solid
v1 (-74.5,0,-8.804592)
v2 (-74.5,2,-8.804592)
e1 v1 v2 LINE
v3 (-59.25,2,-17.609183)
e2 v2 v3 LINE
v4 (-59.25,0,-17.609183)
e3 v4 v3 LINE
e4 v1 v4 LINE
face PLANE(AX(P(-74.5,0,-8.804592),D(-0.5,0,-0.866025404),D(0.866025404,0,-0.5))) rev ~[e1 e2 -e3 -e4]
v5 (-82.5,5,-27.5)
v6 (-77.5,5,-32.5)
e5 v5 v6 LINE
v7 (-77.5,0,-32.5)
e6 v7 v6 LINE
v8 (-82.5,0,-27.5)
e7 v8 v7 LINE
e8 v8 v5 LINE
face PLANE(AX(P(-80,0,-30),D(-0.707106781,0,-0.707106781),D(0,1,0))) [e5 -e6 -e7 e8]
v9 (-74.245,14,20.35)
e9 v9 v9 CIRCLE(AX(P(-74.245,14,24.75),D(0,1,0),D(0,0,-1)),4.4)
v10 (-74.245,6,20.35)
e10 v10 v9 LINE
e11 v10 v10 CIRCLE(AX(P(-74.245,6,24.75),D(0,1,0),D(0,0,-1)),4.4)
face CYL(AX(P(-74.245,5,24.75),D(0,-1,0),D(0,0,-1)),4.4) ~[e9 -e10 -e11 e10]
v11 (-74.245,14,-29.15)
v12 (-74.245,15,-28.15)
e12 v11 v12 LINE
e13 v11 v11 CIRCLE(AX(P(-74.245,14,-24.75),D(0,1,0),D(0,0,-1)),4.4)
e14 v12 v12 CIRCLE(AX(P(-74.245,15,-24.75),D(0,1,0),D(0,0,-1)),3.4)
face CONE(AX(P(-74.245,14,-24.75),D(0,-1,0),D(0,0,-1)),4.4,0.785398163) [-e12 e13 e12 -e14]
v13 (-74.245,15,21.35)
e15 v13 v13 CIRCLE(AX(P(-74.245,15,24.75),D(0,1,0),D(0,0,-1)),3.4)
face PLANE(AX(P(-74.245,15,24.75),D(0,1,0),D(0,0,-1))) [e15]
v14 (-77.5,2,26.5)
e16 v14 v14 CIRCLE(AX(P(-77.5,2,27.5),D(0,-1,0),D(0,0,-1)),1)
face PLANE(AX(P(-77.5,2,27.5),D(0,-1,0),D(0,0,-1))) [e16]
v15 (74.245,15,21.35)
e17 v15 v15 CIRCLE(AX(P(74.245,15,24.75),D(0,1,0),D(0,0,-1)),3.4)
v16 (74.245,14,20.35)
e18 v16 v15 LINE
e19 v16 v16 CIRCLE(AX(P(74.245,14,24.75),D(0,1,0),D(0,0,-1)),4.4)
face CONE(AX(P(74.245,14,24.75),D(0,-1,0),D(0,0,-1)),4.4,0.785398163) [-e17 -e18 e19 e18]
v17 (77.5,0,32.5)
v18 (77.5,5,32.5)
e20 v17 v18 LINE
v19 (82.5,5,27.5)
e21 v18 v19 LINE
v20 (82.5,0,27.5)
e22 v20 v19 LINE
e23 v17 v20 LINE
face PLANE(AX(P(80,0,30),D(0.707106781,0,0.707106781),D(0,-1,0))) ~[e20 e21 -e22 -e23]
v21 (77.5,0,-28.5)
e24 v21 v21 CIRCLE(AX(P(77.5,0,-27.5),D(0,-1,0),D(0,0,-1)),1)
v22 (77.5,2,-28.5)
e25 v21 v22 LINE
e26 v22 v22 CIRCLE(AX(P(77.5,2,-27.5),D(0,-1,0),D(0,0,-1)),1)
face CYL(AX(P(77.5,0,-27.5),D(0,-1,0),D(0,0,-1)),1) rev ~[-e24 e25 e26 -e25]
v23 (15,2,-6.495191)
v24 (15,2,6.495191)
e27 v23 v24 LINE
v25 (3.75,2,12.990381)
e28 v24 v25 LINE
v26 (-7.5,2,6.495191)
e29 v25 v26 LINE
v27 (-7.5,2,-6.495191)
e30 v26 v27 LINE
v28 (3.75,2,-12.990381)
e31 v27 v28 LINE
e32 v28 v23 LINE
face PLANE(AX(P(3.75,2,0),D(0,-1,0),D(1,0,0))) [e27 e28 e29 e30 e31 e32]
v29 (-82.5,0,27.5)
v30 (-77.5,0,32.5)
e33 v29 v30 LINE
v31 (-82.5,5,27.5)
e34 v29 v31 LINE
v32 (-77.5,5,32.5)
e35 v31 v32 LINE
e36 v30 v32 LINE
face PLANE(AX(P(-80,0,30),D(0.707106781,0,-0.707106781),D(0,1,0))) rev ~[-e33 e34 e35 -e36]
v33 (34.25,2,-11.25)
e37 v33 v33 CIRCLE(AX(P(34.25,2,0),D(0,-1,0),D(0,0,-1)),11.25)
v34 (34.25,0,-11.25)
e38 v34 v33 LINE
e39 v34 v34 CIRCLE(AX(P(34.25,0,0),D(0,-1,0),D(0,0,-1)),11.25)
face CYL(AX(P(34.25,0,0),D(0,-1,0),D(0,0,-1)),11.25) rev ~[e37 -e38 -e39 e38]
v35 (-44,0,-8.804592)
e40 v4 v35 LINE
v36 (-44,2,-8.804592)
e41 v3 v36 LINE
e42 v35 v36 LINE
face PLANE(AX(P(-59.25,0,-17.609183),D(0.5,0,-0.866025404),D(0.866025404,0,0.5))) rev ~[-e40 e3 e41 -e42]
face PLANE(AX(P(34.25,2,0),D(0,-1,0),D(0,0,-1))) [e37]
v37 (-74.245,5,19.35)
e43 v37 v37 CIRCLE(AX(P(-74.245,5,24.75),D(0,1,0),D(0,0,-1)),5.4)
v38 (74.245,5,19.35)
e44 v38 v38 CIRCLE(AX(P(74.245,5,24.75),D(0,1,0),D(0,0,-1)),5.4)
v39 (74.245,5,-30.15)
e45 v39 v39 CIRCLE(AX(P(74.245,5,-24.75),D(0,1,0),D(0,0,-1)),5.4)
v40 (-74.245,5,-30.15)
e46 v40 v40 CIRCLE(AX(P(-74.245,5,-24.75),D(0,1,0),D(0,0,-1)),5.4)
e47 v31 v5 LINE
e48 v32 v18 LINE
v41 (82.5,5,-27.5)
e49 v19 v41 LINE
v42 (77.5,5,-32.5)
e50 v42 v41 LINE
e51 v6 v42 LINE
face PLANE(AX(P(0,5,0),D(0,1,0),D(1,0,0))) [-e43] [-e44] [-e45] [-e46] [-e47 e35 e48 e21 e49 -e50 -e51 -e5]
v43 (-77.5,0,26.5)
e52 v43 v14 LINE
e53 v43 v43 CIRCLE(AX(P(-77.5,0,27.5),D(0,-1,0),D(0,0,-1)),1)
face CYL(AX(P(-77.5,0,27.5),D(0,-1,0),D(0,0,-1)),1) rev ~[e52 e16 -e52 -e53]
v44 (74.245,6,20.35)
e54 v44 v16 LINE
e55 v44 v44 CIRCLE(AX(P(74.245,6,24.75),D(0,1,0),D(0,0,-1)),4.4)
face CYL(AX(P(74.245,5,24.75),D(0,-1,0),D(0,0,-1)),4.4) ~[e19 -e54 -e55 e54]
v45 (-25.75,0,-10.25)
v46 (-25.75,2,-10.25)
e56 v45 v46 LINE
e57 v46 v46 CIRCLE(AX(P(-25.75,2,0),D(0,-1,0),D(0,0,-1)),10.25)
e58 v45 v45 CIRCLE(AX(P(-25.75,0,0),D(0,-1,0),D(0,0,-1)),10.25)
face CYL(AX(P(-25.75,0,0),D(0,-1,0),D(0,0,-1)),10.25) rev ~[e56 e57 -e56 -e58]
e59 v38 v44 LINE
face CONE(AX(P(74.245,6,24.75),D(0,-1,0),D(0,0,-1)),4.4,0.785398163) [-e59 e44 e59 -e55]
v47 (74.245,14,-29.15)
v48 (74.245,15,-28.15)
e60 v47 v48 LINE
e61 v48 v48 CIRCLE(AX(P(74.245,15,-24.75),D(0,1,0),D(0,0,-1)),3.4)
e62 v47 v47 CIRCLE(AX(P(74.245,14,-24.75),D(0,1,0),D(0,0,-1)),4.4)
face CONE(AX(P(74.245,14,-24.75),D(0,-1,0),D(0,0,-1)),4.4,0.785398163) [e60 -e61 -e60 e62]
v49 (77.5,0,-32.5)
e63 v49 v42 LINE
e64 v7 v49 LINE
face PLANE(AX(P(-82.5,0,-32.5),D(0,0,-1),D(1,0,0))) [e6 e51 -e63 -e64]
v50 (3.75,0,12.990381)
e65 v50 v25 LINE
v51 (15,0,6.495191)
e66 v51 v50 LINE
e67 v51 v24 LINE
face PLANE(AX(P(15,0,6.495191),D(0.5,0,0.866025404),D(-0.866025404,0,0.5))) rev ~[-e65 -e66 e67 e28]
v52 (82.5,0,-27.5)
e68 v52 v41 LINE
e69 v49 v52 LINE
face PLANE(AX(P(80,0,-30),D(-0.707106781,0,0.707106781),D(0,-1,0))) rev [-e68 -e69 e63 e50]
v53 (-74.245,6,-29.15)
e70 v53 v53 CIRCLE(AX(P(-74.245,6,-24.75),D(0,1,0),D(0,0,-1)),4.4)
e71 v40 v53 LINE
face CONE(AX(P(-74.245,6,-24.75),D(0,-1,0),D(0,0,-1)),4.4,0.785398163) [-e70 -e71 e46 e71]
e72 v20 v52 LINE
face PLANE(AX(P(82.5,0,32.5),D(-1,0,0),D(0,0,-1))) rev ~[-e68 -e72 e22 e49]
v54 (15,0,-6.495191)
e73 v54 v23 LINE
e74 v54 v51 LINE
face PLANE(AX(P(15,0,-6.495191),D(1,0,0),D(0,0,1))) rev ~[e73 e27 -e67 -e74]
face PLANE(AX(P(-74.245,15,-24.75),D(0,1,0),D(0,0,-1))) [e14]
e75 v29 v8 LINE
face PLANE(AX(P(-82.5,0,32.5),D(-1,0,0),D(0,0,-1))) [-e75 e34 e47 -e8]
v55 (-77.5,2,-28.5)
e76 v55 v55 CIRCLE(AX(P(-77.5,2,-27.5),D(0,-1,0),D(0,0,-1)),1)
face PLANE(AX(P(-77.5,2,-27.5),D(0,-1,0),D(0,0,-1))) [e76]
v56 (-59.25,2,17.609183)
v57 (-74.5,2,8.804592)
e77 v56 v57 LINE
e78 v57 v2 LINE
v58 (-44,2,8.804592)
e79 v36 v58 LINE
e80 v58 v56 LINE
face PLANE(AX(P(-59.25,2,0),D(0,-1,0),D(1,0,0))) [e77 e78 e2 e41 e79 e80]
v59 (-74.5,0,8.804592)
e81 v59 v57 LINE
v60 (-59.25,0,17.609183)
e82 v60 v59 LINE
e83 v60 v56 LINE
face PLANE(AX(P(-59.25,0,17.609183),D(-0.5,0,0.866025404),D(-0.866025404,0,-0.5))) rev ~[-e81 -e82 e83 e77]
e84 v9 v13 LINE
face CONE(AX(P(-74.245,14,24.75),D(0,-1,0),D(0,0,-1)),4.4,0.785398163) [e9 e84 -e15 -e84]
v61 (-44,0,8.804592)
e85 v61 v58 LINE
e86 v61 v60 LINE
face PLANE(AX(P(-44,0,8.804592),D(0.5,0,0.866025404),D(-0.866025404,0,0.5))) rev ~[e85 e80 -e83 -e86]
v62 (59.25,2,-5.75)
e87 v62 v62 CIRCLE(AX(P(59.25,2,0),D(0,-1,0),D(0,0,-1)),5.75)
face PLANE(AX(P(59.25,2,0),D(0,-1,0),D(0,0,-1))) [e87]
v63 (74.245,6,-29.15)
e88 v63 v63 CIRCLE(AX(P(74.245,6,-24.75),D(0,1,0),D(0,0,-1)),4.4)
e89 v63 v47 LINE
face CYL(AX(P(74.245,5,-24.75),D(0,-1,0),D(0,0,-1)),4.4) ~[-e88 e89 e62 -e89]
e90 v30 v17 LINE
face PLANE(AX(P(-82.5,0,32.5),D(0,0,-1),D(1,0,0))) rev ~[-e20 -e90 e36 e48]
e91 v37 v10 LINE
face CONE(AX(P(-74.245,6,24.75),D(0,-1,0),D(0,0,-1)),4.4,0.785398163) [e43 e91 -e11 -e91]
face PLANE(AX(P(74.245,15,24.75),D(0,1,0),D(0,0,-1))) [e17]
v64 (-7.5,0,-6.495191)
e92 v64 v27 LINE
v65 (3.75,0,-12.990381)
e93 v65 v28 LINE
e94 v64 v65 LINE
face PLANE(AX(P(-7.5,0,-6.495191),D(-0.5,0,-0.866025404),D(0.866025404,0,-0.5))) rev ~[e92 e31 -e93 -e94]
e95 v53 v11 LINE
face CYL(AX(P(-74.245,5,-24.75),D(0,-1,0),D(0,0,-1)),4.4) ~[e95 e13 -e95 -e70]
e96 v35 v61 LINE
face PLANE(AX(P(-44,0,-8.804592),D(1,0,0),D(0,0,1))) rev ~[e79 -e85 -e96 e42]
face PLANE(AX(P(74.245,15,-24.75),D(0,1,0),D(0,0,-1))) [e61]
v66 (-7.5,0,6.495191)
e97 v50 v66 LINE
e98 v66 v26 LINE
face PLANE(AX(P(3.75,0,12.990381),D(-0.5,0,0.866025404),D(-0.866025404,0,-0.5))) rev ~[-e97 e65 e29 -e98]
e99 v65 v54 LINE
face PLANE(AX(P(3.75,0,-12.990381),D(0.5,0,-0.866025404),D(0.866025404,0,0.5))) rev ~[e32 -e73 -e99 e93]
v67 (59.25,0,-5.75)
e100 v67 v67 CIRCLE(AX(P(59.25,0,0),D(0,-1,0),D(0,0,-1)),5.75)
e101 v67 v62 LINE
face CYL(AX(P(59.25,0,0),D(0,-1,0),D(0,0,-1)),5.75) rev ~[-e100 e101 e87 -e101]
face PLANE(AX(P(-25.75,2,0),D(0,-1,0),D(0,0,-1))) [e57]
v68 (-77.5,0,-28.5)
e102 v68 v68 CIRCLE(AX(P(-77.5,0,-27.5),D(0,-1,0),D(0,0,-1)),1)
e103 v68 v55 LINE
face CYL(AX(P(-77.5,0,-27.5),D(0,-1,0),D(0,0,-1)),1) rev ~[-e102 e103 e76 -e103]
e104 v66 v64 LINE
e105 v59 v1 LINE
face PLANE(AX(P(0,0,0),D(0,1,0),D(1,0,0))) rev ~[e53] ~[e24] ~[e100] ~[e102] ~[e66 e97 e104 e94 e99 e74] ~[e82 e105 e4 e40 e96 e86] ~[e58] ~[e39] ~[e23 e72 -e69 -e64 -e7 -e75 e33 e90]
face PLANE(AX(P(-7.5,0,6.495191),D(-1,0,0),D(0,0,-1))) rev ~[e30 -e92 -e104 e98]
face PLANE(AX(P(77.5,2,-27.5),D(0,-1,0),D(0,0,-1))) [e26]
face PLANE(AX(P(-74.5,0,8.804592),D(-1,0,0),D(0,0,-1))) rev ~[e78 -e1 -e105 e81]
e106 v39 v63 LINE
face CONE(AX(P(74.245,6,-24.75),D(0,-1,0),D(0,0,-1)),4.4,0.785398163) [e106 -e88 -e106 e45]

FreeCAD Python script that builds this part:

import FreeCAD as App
import Part
import Sketcher
from FreeCAD import Vector
Q = App.Units.Quantity


def edges_at(feature, points):
    """Names of the edges that pass closest to the given points."""
    edges = feature.Shape.Edges
    near = lambda p: min(range(len(edges)), key=lambda i: edges[i].distToShape(Part.Vertex(*p))[0])
    return sorted({f"Edge{near(p) + 1}" for p in points})


def add_polygon(sketch, points):
    """Adds a closed chain of lines whose ends are joined by coincident constraints."""
    first, n = sketch.GeometryCount, len(points)
    for a, b in zip(points, points[1:] + points[:1]):
        sketch.addGeometry(Part.LineSegment(App.Vector(*a, 0), App.Vector(*b, 0)), False)
    for i in range(n):
        sketch.addConstraint(Sketcher.Constraint("Coincident", first + i, 2, first + (i + 1) % n, 1))

doc = App.newDocument("Part")
body = doc.addObject("PartDesign::Body", "Body")

# Sketch on XZ plane
sketch1 = body.newObject("Sketcher::SketchObject", "Sketch")
sketch1.AttachmentSupport = (doc.getObject("XZ_Plane"), [""])
sketch1.MapMode = "FlatFace"
add_polygon(sketch1, [(-82.5, -32.5), (-82.5, 32.5), (82.5, 32.5), (82.5, -32.5)])  # lines 0-3
sketch1.addConstraint([
    Sketcher.Constraint("Vertical", 0),
    Sketcher.Constraint("Horizontal", 1),
    Sketcher.Constraint("Vertical", 2),
    Sketcher.Constraint("Horizontal", 3),
    Sketcher.Constraint("Symmetric", 0, 2, 2, 2, -1, 1),
    Sketcher.Constraint("DistanceX", 1, 1, 1, 2, 165.0),
    Sketcher.Constraint("DistanceY", 0, 1, 0, 2, 65.0),
])
pad1 = body.newObject("PartDesign::Pad", "Pad")
pad1.Profile = sketch1
pad1.Length = 5
pad1.Reversed = True

# Sketch on XZ plane
sketch2 = body.newObject("Sketcher::SketchObject", "Sketch001")
sketch2.AttachmentSupport = (doc.getObject("XZ_Plane"), [""])
sketch2.MapMode = "FlatFace"
sketch2.AttachmentOffset = App.Placement(Vector(0, 0, -5), App.Rotation())
sketch2.addGeometry([
    Part.Circle(Vector(-74.245, -24.75, 0), Vector(0, 0, 1), 4.4),
    Part.Circle(Vector(-74.245, 24.75, 0), Vector(0, 0, 1), 4.4),
    Part.Circle(Vector(74.245, 24.75, 0), Vector(0, 0, 1), 4.4),
    Part.Circle(Vector(74.245, -24.75, 0), Vector(0, 0, 1), 4.4),
], False)
sketch2.addConstraint([
    Sketcher.Constraint("Equal", 0, 1),
    Sketcher.Constraint("Equal", 1, 2),
    Sketcher.Constraint("Equal", 2, 3),
    Sketcher.Constraint("Symmetric", 0, 3, 2, 3, -1, 1),
    Sketcher.Constraint("Symmetric", 1, 3, 3, 3, -1, 1),
    Sketcher.Constraint("Symmetric", 1, 3, 2, 3, -2),
    Sketcher.Constraint("Diameter", 0, 8.8),
    Sketcher.Constraint("DistanceY", 0, 3, 1, 3, 49.5),
    Sketcher.Constraint("DistanceX", 1, 3, 2, 3, 148.49),
])
pad2 = body.newObject("PartDesign::Pad", "Pad001")
pad2.Profile = sketch2
pad2.Length = 10
pad2.Reversed = True
doc.recompute()

chamfer = body.newObject("PartDesign::Chamfer", "Chamfer")
chamfer.Base = (pad2, edges_at(pad2, [
    (-74.245, 5, -20.35),
    (-74.245, 15, -20.35),
    (-74.245, 5, 29.15),
    (-74.245, 15, 29.15),
    (74.245, 5, 29.15),
    (74.245, 15, 29.15),
    (74.245, 5, -20.35),
    (74.245, 15, -20.35),
]))
chamfer.Size = 1
doc.recompute()

chamfer2 = body.newObject("PartDesign::Chamfer", "Chamfer001")
chamfer2.Base = (chamfer, edges_at(chamfer, [
    (82.5, 2.5, 32.5),
    (-82.5, 2.5, 32.5),
    (-82.5, 2.5, -32.5),
    (82.5, 2.5, -32.5),
]))
chamfer2.Size = 5

# Sketch on XZ plane
sketch3 = body.newObject("Sketcher::SketchObject", "Sketch002")
sketch3.AttachmentSupport = (doc.getObject("XZ_Plane"), [""])
sketch3.MapMode = "FlatFace"
sketch3.addGeometry([
    Part.Circle(Vector(-77.5, 27.5, 0), Vector(0, 0, 1), 1),
    Part.Circle(Vector(-77.5, -27.5, 0), Vector(0, 0, 1), 1),
    Part.Circle(Vector(77.5, -27.5, 0), Vector(0, 0, 1), 1),
], False)
sketch3.addConstraint([
    Sketcher.Constraint("Equal", 0, 1),
    Sketcher.Constraint("Equal", 1, 2),
    Sketcher.Constraint("Symmetric", 0, 3, 2, 3, -1, 1),
    Sketcher.Constraint("Symmetric", 1, 3, 2, 3, -2),
    Sketcher.Constraint("Diameter", 0, 2.0),
    Sketcher.Constraint("DistanceY", 1, 3, 0, 3, 55.0),
    Sketcher.Constraint("DistanceX", 1, 3, 2, 3, 155.0),
])
pocket1 = body.newObject("PartDesign::Pocket", "Pocket")
pocket1.Profile = sketch3
pocket1.Length = 2

# Sketch on XZ plane
sketch4 = body.newObject("Sketcher::SketchObject", "Sketch003")
sketch4.AttachmentSupport = (doc.getObject("XZ_Plane"), [""])
sketch4.MapMode = "FlatFace"
sketch4.addGeometry(Part.Circle(Vector(-25.75, 0, 0), Vector(0, 0, 1), 10.25), False)  # 0
sketch4.addGeometry(Part.Circle(Vector(34.25, 0, 0), Vector(0, 0, 1), 11.25), False)  # 1
sketch4.addGeometry(Part.Circle(Vector(59.25, 0, 0), Vector(0, 0, 1), 5.75), False)  # 2
add_polygon(sketch4, [(-59.25, 17.609183), (-74.5, 8.804592), (-74.5, -8.804592), (-59.25, -17.609183), (-44, -8.804592), (-44, 8.804592)])  # lines 3-8
add_polygon(sketch4, [(15, -6.495191), (15, 6.495191), (3.75, 12.990381), (-7.5, 6.495191), (-7.5, -6.495191), (3.75, -12.990381)])  # lines 9-14
sketch4.addConstraint([
    Sketcher.Constraint("Vertical", 4),
    Sketcher.Constraint("Vertical", 7),
    Sketcher.Constraint("Vertical", 9),
    Sketcher.Constraint("Vertical", 12),
    Sketcher.Constraint("Symmetric", 5, 2, 8, 2, -1),
    Sketcher.Constraint("Symmetric", 10, 2, 13, 2, -1),
    Sketcher.Constraint("PointOnObject", 0, 3, -1),
    Sketcher.Constraint("PointOnObject", 1, 3, -1),
    Sketcher.Constraint("PointOnObject", 2, 3, -1),
    Sketcher.Constraint("Parallel", 3, 6),
    Sketcher.Constraint("Parallel", 5, 8),
    Sketcher.Constraint("Parallel", 8, 10),
    Sketcher.Constraint("Parallel", 6, 11),
    Sketcher.Constraint("Parallel", 10, 13),
    Sketcher.Constraint("Parallel", 11, 14),
    Sketcher.Constraint("Horizontal", 4, 2, 6, 2),
    Sketcher.Constraint("Horizontal", 3, 2, 7, 2),
    Sketcher.Constraint("Horizontal", 9, 2, 11, 2),
    Sketcher.Constraint("Diameter", 0, 20.5),
    Sketcher.Constraint("Diameter", 1, 22.5),
    Sketcher.Constraint("Diameter", 2, 11.5),
    Sketcher.Constraint("Angle", 3, Q("-150 deg")),
    Sketcher.Constraint("DistanceX", 6, 2, -1, 1, 44.0),
    Sketcher.Constraint("DistanceX", -1, 1, 9, 2, 15.0),
    Sketcher.Constraint("DistanceX", 0, 3, 1, 3, 60.0),
    Sketcher.Constraint("DistanceX", 1, 3, 2, 3, 25.0),
    Sketcher.Constraint("DistanceX", 3, 2, -1, 1, 74.5),
    Sketcher.Constraint("DistanceX", 11, 2, -1, 1, 7.5),
    Sketcher.Constraint("DistanceX", 5, 2, 0, 3, 33.5),
    Sketcher.Constraint("DistanceY", 9, 1, 9, 2, 12.990381),
    Sketcher.Constraint("DistanceY", 9, 2, 7, 2, 2.309401),
])
pocket2 = body.newObject("PartDesign::Pocket", "Pocket001")
pocket2.Profile = sketch4
pocket2.Length = 2

doc.recompute()
